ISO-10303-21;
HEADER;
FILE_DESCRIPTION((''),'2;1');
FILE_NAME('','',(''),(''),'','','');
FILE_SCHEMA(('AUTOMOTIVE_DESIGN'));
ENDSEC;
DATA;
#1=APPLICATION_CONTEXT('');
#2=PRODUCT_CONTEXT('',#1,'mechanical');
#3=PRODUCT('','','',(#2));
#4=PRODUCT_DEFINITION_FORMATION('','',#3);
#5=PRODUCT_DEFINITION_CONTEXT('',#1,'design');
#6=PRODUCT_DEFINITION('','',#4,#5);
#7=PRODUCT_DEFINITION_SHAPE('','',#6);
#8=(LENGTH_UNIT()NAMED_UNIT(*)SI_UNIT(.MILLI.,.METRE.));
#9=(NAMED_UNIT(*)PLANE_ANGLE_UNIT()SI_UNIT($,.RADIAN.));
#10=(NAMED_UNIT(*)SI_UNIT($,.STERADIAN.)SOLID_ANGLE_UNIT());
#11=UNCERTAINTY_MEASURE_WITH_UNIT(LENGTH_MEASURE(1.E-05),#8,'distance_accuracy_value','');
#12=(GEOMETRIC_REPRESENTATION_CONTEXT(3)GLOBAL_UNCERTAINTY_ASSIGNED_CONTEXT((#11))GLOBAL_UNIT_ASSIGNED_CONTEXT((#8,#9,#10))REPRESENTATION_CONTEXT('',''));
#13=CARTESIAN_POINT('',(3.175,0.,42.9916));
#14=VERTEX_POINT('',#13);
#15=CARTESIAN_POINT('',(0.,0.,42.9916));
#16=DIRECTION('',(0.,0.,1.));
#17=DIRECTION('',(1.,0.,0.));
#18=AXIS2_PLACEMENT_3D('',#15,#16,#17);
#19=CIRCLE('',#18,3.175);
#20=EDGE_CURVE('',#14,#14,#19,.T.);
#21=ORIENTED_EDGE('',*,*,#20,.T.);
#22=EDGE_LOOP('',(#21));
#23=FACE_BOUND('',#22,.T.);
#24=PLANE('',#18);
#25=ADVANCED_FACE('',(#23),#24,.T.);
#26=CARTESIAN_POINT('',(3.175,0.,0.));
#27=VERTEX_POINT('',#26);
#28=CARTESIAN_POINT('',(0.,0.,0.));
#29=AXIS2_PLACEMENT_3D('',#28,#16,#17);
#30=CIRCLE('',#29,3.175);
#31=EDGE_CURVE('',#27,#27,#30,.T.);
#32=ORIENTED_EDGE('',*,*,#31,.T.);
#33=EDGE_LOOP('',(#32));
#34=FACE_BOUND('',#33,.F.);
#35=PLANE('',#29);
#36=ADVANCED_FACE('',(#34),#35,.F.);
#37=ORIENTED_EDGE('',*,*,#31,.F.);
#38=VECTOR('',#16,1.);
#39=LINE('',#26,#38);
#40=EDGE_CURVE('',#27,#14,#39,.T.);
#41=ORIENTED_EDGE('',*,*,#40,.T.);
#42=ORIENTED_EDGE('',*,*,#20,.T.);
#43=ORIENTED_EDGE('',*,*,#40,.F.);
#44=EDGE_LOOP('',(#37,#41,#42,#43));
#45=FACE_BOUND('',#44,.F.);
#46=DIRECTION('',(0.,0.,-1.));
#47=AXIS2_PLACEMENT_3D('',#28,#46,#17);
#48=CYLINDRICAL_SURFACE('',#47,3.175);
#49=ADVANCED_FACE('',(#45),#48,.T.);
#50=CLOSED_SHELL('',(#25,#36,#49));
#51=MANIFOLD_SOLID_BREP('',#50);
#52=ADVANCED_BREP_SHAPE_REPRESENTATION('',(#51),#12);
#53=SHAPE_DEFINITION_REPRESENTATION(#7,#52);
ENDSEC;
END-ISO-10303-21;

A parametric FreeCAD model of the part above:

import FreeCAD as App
import Part
import Sketcher

V = App.Vector
Q = App.Units.Quantity

doc = App.newDocument("Part")
params = doc.addObject("Spreadsheet::Sheet", "Params")
for row, (alias, value) in enumerate([
    ("sketch1_diameter", "0.25 in"),
    ("pad1_length", "42.9916 mm"),
], start=1):
    params.set(f"A{row}", alias)
    params.set(f"B{row}", "=" + value)
    params.setAlias(f"B{row}", alias)

body = doc.addObject("PartDesign::Body", "Body")

sketch1 = doc.addObject("Sketcher::SketchObject", "Sketch")
body.addObject(sketch1)
sketch1.AttachmentSupport = (doc.XY_Plane, [""])
sketch1.MapMode = "FlatFace"
sketch1.addGeometry(Part.Circle(V(0, 0, 0), V(0, 0, 1), 3.2), False)
sketch1.addConstraint(Sketcher.Constraint("Coincident", 0, 3, -1, 1))
sketch1.addConstraint(Sketcher.Constraint("Diameter", 0, Q("0.25 in")))
sketch1.setExpression("Constraints[1]", "Params.sketch1_diameter")
pad1 = doc.addObject("PartDesign::Pad", "Pad")
body.addObject(pad1)
pad1.Profile = sketch1
pad1.setExpression("Length", "Params.pad1_length")

doc.recompute()
